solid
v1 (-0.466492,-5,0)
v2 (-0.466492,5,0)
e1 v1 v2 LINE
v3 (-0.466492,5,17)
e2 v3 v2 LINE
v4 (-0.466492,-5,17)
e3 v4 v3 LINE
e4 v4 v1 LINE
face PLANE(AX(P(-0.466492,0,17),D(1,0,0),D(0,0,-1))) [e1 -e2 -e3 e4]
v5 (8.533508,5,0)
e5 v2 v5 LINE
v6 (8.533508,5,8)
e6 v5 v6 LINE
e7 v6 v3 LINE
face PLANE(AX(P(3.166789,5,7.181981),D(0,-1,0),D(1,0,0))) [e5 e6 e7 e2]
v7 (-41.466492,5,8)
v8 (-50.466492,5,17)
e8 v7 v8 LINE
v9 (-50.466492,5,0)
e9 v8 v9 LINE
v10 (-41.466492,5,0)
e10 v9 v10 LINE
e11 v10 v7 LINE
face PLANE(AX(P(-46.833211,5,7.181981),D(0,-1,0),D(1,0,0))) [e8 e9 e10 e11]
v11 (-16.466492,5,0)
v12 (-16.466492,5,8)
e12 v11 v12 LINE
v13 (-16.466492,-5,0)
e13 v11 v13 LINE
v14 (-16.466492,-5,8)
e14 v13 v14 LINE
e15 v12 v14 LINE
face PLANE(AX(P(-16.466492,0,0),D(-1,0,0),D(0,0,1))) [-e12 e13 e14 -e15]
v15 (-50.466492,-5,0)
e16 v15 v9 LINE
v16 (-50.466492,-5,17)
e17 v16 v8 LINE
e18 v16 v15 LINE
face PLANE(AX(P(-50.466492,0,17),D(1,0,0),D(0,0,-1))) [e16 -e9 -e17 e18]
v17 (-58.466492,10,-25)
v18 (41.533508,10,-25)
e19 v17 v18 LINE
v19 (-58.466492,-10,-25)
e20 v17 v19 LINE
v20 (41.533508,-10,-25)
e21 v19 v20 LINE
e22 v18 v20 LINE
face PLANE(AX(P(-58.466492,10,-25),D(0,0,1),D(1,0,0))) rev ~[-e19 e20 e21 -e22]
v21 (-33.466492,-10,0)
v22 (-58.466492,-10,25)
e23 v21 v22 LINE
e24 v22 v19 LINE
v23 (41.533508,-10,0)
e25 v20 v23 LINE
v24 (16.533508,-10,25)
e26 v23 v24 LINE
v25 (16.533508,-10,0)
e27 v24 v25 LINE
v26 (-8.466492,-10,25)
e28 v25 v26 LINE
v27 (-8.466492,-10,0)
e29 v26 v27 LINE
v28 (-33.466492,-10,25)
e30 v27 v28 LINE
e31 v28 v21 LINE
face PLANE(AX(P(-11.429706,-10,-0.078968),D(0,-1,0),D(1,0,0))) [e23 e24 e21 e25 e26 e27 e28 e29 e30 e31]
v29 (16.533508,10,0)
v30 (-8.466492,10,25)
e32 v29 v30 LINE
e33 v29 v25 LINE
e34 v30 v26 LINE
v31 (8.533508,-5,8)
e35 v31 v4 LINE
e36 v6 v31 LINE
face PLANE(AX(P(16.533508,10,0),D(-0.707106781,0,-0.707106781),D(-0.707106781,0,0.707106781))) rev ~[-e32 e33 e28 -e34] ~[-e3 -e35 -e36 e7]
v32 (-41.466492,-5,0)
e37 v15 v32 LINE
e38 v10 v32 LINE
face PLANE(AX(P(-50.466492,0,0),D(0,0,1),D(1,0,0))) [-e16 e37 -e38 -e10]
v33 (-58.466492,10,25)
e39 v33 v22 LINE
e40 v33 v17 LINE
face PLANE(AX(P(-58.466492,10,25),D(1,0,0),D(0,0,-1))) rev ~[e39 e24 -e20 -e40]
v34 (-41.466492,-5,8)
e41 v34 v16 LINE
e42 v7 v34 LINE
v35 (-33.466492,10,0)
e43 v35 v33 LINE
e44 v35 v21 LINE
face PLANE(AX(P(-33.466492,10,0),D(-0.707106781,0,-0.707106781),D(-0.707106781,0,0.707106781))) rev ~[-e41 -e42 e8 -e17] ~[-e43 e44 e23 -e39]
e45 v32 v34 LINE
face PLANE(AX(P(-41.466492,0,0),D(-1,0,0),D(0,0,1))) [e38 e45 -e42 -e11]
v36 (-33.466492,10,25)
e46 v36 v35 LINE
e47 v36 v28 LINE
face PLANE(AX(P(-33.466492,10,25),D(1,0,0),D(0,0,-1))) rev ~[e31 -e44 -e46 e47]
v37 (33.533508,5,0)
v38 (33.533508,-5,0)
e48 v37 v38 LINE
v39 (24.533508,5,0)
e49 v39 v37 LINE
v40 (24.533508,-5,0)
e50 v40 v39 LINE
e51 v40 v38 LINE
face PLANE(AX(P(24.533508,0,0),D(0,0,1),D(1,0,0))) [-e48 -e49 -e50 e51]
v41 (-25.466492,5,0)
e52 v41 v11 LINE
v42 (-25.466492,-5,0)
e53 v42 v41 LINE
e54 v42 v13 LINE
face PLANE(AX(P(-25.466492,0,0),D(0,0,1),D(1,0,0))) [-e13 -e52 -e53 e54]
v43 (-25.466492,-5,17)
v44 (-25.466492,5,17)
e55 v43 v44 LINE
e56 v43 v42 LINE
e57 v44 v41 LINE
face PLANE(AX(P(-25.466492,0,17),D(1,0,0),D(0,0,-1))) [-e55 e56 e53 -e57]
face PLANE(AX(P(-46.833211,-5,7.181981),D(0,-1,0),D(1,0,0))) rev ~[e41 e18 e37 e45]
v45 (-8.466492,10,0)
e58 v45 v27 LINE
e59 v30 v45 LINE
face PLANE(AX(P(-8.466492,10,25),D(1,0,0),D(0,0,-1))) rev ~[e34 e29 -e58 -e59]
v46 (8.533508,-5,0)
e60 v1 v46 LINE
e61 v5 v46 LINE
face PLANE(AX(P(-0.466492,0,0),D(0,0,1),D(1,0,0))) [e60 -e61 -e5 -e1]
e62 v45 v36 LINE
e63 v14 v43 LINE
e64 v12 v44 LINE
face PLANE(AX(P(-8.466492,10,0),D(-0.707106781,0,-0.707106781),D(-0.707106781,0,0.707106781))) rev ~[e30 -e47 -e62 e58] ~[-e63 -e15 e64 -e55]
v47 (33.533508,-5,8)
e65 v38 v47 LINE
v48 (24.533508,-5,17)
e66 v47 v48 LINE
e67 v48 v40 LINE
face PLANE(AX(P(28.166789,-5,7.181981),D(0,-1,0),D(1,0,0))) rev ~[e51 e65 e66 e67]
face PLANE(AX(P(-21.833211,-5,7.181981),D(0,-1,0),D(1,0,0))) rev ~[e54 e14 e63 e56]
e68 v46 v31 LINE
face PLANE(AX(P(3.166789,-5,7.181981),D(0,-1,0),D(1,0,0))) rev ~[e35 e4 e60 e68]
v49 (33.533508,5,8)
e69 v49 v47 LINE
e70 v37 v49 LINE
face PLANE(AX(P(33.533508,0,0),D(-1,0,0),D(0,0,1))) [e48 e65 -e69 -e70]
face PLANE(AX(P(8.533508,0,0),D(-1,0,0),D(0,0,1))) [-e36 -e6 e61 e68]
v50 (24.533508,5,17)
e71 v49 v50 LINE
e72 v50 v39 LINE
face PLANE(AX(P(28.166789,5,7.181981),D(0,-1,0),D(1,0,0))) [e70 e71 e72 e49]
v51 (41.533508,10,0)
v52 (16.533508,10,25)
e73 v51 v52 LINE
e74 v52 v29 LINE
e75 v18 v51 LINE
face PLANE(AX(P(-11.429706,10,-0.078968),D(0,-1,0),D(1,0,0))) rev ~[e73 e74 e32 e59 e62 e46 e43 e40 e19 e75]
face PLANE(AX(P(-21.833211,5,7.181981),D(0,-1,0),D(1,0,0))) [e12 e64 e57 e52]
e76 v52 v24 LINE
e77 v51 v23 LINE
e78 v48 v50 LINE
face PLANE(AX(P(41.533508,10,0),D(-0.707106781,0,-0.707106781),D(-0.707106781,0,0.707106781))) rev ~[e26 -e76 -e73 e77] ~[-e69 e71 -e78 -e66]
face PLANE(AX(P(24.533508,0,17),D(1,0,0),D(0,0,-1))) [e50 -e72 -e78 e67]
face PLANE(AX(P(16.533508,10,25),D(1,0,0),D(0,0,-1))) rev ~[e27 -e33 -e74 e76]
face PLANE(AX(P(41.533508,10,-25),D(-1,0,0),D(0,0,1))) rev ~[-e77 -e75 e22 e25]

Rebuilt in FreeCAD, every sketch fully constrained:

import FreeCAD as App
import Part
import Sketcher

V = App.Vector


def add_polygon(sketch, points):
    """Adds a closed chain of lines whose ends are joined by coincident constraints."""
    first, n = sketch.GeometryCount, len(points)
    for a, b in zip(points, points[1:] + points[:1]):
        sketch.addGeometry(Part.LineSegment(App.Vector(*a, 0), App.Vector(*b, 0)), False)
    for i in range(n):
        sketch.addConstraint(Sketcher.Constraint("Coincident", first + i, 2, first + (i + 1) % n, 1))

doc = App.newDocument("Part")
params = doc.addObject("Spreadsheet::Sheet", "Params")
for row, (alias, value) in enumerate([
    ("sketch1_width", "100 mm"),
    ("sketch1_height", "50 mm"),
    ("pad1_length", "20 mm"),
    ("sketch2_width", "9 mm"),
    ("sketch2_height", "8 mm"),
    ("sketch2_height2", "17 mm"),
    ("pocket1_length", "5 mm"),
    ("pocket1_length2", "5 mm"),
], start=1):
    params.set(f"A{row}", alias)
    params.set(f"B{row}", "=" + value)
    params.setAlias(f"B{row}", alias)

body = doc.addObject("PartDesign::Body", "Body")

sketch1 = body.newObject("Sketcher::SketchObject", "Sketch")
sketch1.AttachmentSupport = (doc.getObject("XZ_Plane"), [""])
sketch1.MapMode = "FlatFace"
add_polygon(sketch1, [(-58, 25), (-58, -25), (42, -25), (42, 0), (17, 25), (17, 0), (-8, 25), (-8, 0), (-33, 25), (-33, 0)])
sketch1.addConstraint([
    Sketcher.Constraint("Vertical", 0),
    Sketcher.Constraint("Horizontal", 1),
    Sketcher.Constraint("Vertical", 2),
    Sketcher.Constraint("Vertical", 4),
    Sketcher.Constraint("Vertical", 6),
    Sketcher.Constraint("Vertical", 8),
    Sketcher.Constraint("PointOnObject", 2, 2, -1),
    Sketcher.Constraint("PointOnObject", 4, 2, -1),
    Sketcher.Constraint("PointOnObject", 6, 2, -1),
    Sketcher.Constraint("PointOnObject", 8, 2, -1),
    Sketcher.Constraint("Parallel", 3, 5),
    Sketcher.Constraint("Parallel", 5, 7),
    Sketcher.Constraint("Parallel", 7, 9),
    Sketcher.Constraint("Horizontal", 3, 2, 5, 2),
    Sketcher.Constraint("Horizontal", 5, 2, 7, 2),
    Sketcher.Constraint("Horizontal", 7, 2, 9, 2),
    Sketcher.Constraint("Equal", 2, 4),
    Sketcher.Constraint("DistanceX", 1, 1, 1, 2, 100.0),
    Sketcher.Constraint("DistanceY", 0, 2, 0, 1, 50.0),
    Sketcher.Constraint("DistanceX", -1, 1, 3, 2, 16.533508),
])
sketch1.setExpression("Constraints[27]", "Params.sketch1_width")
sketch1.setExpression("Constraints[28]", "Params.sketch1_height")
pad1 = body.newObject("PartDesign::Pad", "Pad")
pad1.Profile = sketch1
pad1.setExpression("Length", "Params.pad1_length")
body2 = doc.addObject("PartDesign::Body", "Body001")
doc.recompute()

body.Placement = App.Placement(V(0, 10, 0), App.Rotation(V(0, 0, 1), 0))
boolean = body2.newObject("PartDesign::Boolean", "Boolean")
boolean.Type = "Fuse"
boolean.addObjects([body])

sketch2 = body2.newObject("Sketcher::SketchObject", "Sketch001")
sketch2.AttachmentSupport = (doc.getObject("XZ_Plane001"), [""])
sketch2.MapMode = "FlatFace"
add_polygon(sketch2, [(34, 0), (34, 8), (25, 17), (25, 0)])
add_polygon(sketch2, [(9, 0), (9, 8), (0, 17), (0, 0)])
add_polygon(sketch2, [(-16, 8), (-25, 17), (-25, 0), (-16, 0)])
add_polygon(sketch2, [(-41, 8), (-50, 17), (-50, 0), (-41, 0)])
sketch2.addConstraint([
    Sketcher.Constraint("Vertical", 0),
    Sketcher.Constraint("Vertical", 2),
    Sketcher.Constraint("Horizontal", 3),
    Sketcher.Constraint("Vertical", 4),
    Sketcher.Constraint("Vertical", 6),
    Sketcher.Constraint("Horizontal", 7),
    Sketcher.Constraint("Vertical", 9),
    Sketcher.Constraint("Horizontal", 10),
    Sketcher.Constraint("Vertical", 11),
    Sketcher.Constraint("Vertical", 13),
    Sketcher.Constraint("Horizontal", 14),
    Sketcher.Constraint("Vertical", 15),
    Sketcher.Constraint("PointOnObject", 2, 2, -1),
    Sketcher.Constraint("PointOnObject", 6, 2, -1),
    Sketcher.Constraint("PointOnObject", 9, 2, -1),
    Sketcher.Constraint("PointOnObject", 13, 2, -1),
    Sketcher.Constraint("Parallel", 1, 5),
    Sketcher.Constraint("Parallel", 5, 8),
    Sketcher.Constraint("Parallel", 8, 12),
    Sketcher.Constraint("Horizontal", 0, 2, 4, 2),
    Sketcher.Constraint("Horizontal", 1, 2, 5, 2),
    Sketcher.Constraint("Horizontal", 5, 2, 8, 2),
    Sketcher.Constraint("Horizontal", 4, 2, 11, 2),
    Sketcher.Constraint("Horizontal", 8, 2, 12, 2),
    Sketcher.Constraint("Horizontal", 11, 2, 15, 2),
    Sketcher.Constraint("DistanceX", 3, 1, 3, 2, 9.0),
    Sketcher.Constraint("DistanceY", 0, 1, 0, 2, 8.0),
    Sketcher.Constraint("DistanceY", 2, 2, 2, 1, 17.0),
    Sketcher.Constraint("DistanceX", 4, 2, 2, 2, 16.0),
    Sketcher.Constraint("DistanceX", 8, 2, 5, 2, 25.0),
    Sketcher.Constraint("DistanceX", 12, 2, 8, 2, 25.0),
    Sketcher.Constraint("DistanceX", -1, 1, 1, 2, 24.533508),
])
sketch2.setExpression("Constraints[41]", "Params.sketch2_width")
sketch2.setExpression("Constraints[42]", "Params.sketch2_height")
sketch2.setExpression("Constraints[43]", "Params.sketch2_height2")
pocket1 = body2.newObject("PartDesign::Pocket", "Pocket")
pocket1.Profile = sketch2
pocket1.Type = "TwoLengths"
pocket1.setExpression("Length", "Params.pocket1_length")
pocket1.setExpression("Length2", "Params.pocket1_length2")
pocket1.Reversed = True

doc.recompute()
